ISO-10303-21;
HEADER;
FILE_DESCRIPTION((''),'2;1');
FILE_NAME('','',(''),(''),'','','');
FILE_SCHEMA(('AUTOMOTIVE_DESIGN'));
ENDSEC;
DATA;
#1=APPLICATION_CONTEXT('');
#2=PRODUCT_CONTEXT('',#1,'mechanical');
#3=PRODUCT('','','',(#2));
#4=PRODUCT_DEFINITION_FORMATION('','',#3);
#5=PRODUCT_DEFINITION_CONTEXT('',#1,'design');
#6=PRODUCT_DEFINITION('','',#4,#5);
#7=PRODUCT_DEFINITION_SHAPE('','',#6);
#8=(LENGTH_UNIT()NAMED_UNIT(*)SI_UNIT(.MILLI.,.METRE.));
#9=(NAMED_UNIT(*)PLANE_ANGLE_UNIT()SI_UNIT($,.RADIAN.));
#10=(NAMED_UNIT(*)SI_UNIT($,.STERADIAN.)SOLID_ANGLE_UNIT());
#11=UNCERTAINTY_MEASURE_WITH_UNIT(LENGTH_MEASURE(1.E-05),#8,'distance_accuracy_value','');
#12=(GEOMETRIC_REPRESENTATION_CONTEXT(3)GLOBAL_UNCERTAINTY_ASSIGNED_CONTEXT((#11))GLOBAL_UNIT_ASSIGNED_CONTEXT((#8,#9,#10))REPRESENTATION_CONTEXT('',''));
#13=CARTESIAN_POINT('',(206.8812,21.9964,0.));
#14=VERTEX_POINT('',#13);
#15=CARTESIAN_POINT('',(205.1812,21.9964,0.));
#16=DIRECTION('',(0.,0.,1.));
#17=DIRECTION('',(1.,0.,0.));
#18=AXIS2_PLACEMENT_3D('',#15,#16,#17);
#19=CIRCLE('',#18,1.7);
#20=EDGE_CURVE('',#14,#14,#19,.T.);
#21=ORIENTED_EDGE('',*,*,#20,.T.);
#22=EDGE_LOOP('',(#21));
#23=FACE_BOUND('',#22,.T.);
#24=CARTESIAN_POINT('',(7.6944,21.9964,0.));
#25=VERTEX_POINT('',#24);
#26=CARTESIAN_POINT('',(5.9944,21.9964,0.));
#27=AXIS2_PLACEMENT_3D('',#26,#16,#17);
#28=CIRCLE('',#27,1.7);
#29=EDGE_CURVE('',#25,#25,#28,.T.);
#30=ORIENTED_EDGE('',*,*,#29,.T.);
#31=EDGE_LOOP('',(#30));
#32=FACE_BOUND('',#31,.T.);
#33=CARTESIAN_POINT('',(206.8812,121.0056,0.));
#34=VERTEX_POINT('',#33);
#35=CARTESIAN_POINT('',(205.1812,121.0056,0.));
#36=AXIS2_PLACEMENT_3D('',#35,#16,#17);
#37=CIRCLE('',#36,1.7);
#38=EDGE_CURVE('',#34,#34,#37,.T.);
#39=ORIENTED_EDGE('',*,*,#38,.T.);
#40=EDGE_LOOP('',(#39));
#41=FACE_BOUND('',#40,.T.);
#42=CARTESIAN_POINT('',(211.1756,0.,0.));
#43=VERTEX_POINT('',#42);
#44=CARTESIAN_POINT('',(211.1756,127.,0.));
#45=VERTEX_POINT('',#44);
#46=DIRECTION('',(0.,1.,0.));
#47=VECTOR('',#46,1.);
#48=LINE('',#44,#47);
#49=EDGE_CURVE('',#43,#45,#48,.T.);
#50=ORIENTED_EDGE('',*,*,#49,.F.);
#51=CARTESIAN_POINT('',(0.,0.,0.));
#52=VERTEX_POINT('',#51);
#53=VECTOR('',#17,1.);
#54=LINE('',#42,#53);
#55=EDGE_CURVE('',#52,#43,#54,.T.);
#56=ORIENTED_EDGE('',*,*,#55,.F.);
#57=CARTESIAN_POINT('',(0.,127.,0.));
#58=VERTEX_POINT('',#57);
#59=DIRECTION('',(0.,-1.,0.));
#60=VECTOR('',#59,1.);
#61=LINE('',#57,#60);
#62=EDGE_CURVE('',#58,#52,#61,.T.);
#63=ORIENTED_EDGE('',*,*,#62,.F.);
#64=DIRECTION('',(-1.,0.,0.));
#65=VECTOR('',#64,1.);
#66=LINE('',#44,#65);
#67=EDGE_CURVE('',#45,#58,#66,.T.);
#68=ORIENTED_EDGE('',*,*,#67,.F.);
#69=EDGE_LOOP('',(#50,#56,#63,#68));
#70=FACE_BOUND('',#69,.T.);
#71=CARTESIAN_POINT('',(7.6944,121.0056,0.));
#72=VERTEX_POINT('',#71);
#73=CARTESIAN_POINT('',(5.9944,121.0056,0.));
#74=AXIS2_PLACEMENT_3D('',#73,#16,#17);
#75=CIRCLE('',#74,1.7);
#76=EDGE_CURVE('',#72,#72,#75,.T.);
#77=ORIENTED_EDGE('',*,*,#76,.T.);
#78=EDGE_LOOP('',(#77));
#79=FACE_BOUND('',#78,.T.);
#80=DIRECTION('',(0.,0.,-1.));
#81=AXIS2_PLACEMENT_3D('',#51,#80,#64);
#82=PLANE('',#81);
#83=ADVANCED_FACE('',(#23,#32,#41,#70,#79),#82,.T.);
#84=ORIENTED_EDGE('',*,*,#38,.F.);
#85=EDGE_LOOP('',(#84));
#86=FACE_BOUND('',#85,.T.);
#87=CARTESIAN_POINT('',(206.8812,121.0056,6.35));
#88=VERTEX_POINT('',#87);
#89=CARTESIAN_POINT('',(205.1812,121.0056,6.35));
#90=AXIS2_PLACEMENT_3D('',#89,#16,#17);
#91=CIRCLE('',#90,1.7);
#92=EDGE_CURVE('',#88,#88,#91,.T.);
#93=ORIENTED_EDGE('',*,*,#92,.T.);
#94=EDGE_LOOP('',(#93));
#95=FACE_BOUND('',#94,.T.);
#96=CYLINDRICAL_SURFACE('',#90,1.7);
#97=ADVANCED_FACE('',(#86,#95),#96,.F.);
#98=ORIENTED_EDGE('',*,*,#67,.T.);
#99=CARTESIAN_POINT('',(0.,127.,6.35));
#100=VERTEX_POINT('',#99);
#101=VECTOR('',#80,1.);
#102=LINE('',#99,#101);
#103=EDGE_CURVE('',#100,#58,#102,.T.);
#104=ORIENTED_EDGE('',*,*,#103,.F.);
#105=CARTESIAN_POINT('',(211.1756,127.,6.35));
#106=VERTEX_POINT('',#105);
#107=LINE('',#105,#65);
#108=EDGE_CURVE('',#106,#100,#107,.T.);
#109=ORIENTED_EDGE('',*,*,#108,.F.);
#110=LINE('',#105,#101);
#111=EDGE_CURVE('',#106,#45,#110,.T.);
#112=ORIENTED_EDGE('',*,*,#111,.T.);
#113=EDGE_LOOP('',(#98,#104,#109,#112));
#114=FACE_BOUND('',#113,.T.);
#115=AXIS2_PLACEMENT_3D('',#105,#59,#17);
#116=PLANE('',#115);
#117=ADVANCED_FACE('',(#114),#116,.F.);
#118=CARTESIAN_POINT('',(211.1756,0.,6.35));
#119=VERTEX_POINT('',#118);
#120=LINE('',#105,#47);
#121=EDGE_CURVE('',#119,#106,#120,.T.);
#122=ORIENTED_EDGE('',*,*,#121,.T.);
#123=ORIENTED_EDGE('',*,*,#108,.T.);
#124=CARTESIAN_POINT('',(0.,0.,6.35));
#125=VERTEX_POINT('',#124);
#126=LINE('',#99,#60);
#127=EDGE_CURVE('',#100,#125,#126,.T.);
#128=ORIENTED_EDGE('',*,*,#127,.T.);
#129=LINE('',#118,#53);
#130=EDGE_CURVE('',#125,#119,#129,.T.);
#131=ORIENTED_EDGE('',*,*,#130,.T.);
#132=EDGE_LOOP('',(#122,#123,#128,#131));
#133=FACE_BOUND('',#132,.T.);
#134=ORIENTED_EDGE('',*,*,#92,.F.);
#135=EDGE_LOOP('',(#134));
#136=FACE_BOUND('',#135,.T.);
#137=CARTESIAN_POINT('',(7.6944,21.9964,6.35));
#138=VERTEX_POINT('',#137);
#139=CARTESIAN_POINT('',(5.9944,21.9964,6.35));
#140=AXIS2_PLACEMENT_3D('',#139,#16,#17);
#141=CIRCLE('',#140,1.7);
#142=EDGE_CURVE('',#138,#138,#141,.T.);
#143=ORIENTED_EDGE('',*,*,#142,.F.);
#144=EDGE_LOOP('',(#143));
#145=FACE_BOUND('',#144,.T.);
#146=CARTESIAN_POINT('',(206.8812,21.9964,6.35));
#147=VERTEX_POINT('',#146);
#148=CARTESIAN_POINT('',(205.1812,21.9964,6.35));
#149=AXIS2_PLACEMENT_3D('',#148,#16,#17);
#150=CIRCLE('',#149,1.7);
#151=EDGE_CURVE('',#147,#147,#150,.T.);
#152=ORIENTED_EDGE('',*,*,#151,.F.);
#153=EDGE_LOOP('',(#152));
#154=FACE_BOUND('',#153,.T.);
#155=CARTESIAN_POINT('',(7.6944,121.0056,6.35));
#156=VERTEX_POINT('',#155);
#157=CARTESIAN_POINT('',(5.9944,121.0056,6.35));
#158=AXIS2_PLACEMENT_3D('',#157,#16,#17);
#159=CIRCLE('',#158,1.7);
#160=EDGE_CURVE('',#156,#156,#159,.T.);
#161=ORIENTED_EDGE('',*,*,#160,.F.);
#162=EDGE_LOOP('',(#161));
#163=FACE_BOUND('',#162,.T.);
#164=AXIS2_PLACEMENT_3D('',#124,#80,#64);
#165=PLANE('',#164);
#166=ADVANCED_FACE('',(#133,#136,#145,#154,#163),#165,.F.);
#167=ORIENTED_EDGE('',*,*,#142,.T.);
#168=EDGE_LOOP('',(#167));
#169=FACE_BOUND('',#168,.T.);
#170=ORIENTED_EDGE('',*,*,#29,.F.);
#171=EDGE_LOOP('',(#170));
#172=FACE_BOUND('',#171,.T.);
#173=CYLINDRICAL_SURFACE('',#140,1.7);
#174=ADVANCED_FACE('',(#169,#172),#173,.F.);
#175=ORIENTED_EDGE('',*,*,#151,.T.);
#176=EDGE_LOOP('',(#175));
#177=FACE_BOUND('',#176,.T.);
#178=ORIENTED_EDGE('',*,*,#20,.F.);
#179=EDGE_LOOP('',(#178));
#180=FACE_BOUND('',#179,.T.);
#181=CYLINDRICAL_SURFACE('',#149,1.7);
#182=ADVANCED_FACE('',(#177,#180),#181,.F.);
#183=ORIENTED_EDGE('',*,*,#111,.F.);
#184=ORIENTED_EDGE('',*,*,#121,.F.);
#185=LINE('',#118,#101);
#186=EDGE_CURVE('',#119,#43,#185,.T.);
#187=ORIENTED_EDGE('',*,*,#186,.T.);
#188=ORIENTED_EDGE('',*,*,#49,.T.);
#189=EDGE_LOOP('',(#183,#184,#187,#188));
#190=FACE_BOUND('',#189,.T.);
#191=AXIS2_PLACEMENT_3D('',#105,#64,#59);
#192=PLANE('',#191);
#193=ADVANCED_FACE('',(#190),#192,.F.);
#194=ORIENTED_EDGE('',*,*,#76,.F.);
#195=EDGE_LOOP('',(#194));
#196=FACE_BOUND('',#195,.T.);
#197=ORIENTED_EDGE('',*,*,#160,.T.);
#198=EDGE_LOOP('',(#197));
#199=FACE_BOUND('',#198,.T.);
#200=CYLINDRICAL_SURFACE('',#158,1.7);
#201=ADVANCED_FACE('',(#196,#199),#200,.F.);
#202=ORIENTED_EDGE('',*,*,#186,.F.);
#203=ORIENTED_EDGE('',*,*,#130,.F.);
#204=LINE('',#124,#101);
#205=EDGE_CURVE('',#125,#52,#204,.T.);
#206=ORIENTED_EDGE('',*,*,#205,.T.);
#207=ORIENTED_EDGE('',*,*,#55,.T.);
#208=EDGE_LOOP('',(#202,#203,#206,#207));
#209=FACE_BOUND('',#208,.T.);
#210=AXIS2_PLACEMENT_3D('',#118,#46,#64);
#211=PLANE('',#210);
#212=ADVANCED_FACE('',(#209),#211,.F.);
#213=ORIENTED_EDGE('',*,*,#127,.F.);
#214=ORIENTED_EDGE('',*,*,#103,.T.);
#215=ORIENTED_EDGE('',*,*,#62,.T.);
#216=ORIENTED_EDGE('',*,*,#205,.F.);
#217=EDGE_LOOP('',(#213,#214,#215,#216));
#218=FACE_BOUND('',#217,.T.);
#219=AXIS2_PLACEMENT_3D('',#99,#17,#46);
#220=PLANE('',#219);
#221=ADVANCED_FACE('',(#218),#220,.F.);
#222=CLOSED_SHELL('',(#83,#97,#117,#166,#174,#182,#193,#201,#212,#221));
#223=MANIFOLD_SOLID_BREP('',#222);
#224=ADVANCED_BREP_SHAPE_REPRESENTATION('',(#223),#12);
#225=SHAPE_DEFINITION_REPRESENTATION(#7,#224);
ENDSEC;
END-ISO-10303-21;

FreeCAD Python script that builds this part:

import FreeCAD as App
import Part
import Sketcher

V = App.Vector
Q = App.Units.Quantity


def add_polygon(sketch, points):
    """Adds a closed chain of lines whose ends are joined by coincident constraints."""
    first, n = sketch.GeometryCount, len(points)
    for a, b in zip(points, points[1:] + points[:1]):
        sketch.addGeometry(Part.LineSegment(App.Vector(*a, 0), App.Vector(*b, 0)), False)
    for i in range(n):
        sketch.addConstraint(Sketcher.Constraint("Coincident", first + i, 2, first + (i + 1) % n, 1))

doc = App.newDocument("Part")
body = doc.addObject("PartDesign::Body", "Body")

sketch1 = body.newObject("Sketcher::SketchObject", "Sketch")
sketch1.AttachmentSupport = (doc.getObject("XY_Plane"), [""])
sketch1.MapMode = "FlatFace"
add_polygon(sketch1, [(0, 127), (0, 0), (211.1756, 0), (211.1756, 127)])
sketch1.addConstraint([
    Sketcher.Constraint("Vertical", 0),
    Sketcher.Constraint("Horizontal", 1),
    Sketcher.Constraint("Vertical", 2),
    Sketcher.Constraint("Horizontal", 3),
    Sketcher.Constraint("Coincident", 0, 2, -1, 1),
    Sketcher.Constraint("DistanceY", 0, 2, 0, 1, Q("5 in")),
    Sketcher.Constraint("DistanceX", 1, 1, 1, 2, Q("8.314 in")),
])
pad1 = body.newObject("PartDesign::Pad", "Pad")
pad1.Profile = sketch1
pad1.Length = Q("0.25 in")

sketch2 = body.newObject("Sketcher::SketchObject", "Sketch001")
sketch2.AttachmentSupport = (doc.getObject("XY_Plane"), [""])
sketch2.MapMode = "FlatFace"
sketch2.AttachmentOffset = App.Placement(V(0, 0, 0.25 * 25.4), App.Rotation())
sketch2.addGeometry([
    Part.Circle(V(5.9944, 121.0056, 0), V(0, 0, 1), 1.7),
    Part.Circle(V(5.9944, 21.9964, 0), V(0, 0, 1), 1.7),
    Part.Circle(V(205.1812, 21.9964, 0), V(0, 0, 1), 1.7),
    Part.Circle(V(205.1812, 121.0056, 0), V(0, 0, 1), 1.7),
], False)
sketch2.addConstraint([
    Sketcher.Constraint("Equal", 0, 1),
    Sketcher.Constraint("Equal", 1, 2),
    Sketcher.Constraint("Equal", 2, 3),
    Sketcher.Constraint("Horizontal", 1, 3, 2, 3),
    Sketcher.Constraint("Horizontal", 0, 3, 3, 3),
    Sketcher.Constraint("Vertical", 0, 3, 1, 3),
    Sketcher.Constraint("Vertical", 2, 3, 3, 3),
    Sketcher.Constraint("Diameter", 0, Q("3.4 mm")),
    Sketcher.Constraint("DistanceX", -1, 1, 0, 3, Q("0.236 in")),
    Sketcher.Constraint("DistanceY", -1, 1, 0, 3, Q("4.764 in")),
    Sketcher.Constraint("DistanceY", -1, 1, 1, 3, Q("0.866 in")),
    Sketcher.Constraint("DistanceX", -1, 1, 2, 3, Q("8.078 in")),
])
doc.recompute()
hole = body.newObject("PartDesign::Hole", "Hole")
hole.Profile = sketch2
hole.ThreadType = "None"
hole.Diameter = 3.4
hole.DepthType = "ThroughAll"

doc.recompute()
